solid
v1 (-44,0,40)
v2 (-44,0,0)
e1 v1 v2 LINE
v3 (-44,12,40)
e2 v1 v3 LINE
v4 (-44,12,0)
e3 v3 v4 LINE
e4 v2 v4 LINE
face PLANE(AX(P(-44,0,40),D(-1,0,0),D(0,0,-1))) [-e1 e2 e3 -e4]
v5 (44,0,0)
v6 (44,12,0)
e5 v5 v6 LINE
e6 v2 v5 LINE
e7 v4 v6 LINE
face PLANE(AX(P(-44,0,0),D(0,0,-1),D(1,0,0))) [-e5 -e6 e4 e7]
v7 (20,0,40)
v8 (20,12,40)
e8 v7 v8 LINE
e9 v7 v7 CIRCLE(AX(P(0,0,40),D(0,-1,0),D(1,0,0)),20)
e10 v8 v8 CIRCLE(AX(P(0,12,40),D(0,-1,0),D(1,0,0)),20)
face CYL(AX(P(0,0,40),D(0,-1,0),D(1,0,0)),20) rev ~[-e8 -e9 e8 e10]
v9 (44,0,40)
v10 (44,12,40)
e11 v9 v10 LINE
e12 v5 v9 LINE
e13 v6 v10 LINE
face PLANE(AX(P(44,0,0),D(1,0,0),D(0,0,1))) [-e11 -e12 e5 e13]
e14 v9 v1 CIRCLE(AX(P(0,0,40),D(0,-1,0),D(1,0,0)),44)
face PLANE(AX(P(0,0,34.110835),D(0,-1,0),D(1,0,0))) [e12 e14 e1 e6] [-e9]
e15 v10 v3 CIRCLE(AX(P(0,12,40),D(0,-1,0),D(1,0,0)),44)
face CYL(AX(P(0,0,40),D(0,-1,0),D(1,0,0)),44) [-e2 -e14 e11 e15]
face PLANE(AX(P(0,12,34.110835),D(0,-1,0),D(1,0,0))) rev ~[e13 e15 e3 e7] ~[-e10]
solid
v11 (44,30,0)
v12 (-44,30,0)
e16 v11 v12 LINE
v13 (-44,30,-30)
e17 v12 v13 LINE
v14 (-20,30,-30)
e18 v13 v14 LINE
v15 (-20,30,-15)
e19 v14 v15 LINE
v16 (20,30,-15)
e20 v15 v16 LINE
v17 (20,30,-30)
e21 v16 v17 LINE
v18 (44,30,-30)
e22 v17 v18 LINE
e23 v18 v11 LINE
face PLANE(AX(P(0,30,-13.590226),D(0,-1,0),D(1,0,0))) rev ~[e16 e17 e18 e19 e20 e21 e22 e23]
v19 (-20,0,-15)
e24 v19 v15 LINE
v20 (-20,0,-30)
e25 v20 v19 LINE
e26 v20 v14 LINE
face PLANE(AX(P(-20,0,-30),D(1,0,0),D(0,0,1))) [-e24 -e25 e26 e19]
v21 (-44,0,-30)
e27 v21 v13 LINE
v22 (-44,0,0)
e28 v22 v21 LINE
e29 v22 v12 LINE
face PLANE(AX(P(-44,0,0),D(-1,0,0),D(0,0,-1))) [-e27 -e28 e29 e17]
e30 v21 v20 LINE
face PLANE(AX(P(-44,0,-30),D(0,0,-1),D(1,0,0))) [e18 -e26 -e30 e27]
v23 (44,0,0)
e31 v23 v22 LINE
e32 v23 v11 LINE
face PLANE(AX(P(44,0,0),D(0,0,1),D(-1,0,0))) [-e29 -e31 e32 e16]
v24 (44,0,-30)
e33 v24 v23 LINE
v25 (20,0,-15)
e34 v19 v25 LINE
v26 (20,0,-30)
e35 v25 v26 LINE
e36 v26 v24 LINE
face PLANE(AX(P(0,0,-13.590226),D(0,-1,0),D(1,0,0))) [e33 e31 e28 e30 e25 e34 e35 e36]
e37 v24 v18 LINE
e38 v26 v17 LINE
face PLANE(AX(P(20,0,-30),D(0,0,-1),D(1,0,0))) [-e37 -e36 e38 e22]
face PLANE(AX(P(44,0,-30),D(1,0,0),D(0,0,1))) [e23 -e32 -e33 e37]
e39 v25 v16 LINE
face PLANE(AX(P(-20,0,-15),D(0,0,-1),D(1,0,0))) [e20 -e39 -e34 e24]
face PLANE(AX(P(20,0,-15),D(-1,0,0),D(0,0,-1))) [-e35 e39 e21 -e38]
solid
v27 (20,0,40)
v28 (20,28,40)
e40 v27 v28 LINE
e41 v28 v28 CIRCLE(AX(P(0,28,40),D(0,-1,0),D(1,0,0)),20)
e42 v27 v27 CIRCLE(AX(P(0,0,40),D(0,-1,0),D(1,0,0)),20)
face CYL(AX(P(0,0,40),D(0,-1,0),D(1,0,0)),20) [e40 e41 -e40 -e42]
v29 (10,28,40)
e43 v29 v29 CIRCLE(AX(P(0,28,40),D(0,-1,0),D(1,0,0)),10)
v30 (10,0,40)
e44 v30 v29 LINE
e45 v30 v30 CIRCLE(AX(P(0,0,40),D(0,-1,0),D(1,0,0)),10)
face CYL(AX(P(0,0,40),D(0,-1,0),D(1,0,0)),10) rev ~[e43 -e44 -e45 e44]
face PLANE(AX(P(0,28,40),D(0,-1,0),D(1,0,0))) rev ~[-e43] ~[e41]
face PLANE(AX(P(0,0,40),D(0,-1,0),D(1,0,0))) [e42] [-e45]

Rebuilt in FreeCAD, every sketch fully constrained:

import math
import FreeCAD as App
import Part
import Sketcher
from FreeCAD import Vector
Q = App.Units.Quantity


def add_polygon(sketch, points):
    """Adds a closed chain of lines whose ends are joined by coincident constraints."""
    first, n = sketch.GeometryCount, len(points)
    for a, b in zip(points, points[1:] + points[:1]):
        sketch.addGeometry(Part.LineSegment(App.Vector(*a, 0), App.Vector(*b, 0)), False)
    for i in range(n):
        sketch.addConstraint(Sketcher.Constraint("Coincident", first + i, 2, first + (i + 1) % n, 1))

doc = App.newDocument("Part")
params = doc.addObject("Spreadsheet::Sheet", "Params")
for row, (alias, value) in enumerate([
    ("sketch1_width", "24 mm"),
    ("sketch1_width2", "40 mm"),
    ("sketch1_height", "30 mm"),
    ("sketch1_height2", "15 mm"),
    ("pad1_length", "30 mm"),
    ("sketch2_diameter", "40 mm"),
    ("sketch2_radius", "44 mm"),
    ("sketch2_height", "40 mm"),
    ("pad2_length", "12 mm"),
    ("sketch3_diameter", "40 mm"),
    ("sketch3_diameter2", "20 mm"),
    ("pad3_length", "28 mm"),
], start=1):
    params.set(f"A{row}", alias)
    params.set(f"B{row}", "=" + value)
    params.setAlias(f"B{row}", alias)

body = doc.addObject("PartDesign::Body", "Body")

# Sketch on XZ plane
sketch1 = body.newObject("Sketcher::SketchObject", "Sketch")
sketch1.AttachmentSupport = (doc.getObject("XZ_Plane"), [""])
sketch1.MapMode = "FlatFace"
add_polygon(sketch1, [(-44, 0), (-44, -30), (-20, -30), (-20, -15), (20, -15), (20, -30), (44, -30), (44, 0)])  # lines 0-7
sketch1.addConstraint([
    Sketcher.Constraint("Vertical", 0),
    Sketcher.Constraint("Horizontal", 1),
    Sketcher.Constraint("Vertical", 2),
    Sketcher.Constraint("Horizontal", 3),
    Sketcher.Constraint("Vertical", 4),
    Sketcher.Constraint("Horizontal", 5),
    Sketcher.Constraint("Vertical", 6),
    Sketcher.Constraint("Horizontal", 7),
    Sketcher.Constraint("Symmetric", 6, 2, 7, 2, -1, 1),
    Sketcher.Constraint("Symmetric", 1, 2, 4, 2, -2),
    Sketcher.Constraint("DistanceX", 1, 1, 1, 2, Q("24 mm")),
    Sketcher.Constraint("DistanceX", 3, 1, 3, 2, Q("40 mm")),
    Sketcher.Constraint("DistanceY", 0, 2, 0, 1, Q("30 mm")),
    Sketcher.Constraint("DistanceY", 2, 1, 2, 2, Q("15 mm")),
])
sketch1.setExpression("Constraints[18]", "Params.sketch1_width")
sketch1.setExpression("Constraints[19]", "Params.sketch1_width2")
sketch1.setExpression("Constraints[20]", "Params.sketch1_height")
sketch1.setExpression("Constraints[21]", "Params.sketch1_height2")
pad1 = body.newObject("PartDesign::Pad", "Pad")
pad1.Profile = sketch1
pad1.setExpression("Length", "Params.pad1_length")
pad1.Reversed = True
body2 = doc.addObject("PartDesign::Body", "Body001")

# Sketch on XZ plane
sketch2 = body2.newObject("Sketcher::SketchObject", "Sketch001")
sketch2.AttachmentSupport = (doc.getObject("XZ_Plane001"), [""])
sketch2.MapMode = "FlatFace"
sketch2.addGeometry([
    Part.LineSegment(Vector(-44, 40, 0), Vector(-44, 0, 0)),  # 0
    Part.LineSegment(Vector(-44, 0, 0), Vector(44, 0, 0)),  # 1
    Part.LineSegment(Vector(44, 0, 0), Vector(44, 40, 0)),  # 2
    Part.ArcOfCircle(Part.Circle(Vector(0, 40, 0), Vector(0, 0, 1), 44), math.radians(0), math.radians(180)),  # 3
    Part.Circle(Vector(0, 40, 0), Vector(0, 0, 1), 20),  # 4
], False)
sketch2.addConstraint([
    Sketcher.Constraint("Coincident", 0, 2, 1, 1),
    Sketcher.Constraint("Coincident", 1, 2, 2, 1),
    Sketcher.Constraint("Tangent", 2, 2, 3, 1),
    Sketcher.Constraint("Tangent", 3, 2, 0, 1),
    Sketcher.Constraint("Vertical", 0),
    Sketcher.Constraint("Horizontal", 1),
    Sketcher.Constraint("Vertical", 2),
    Sketcher.Constraint("Coincident", 4, 3, 3, 3),
    Sketcher.Constraint("Symmetric", 0, 2, 1, 2, -1, 1),
    Sketcher.Constraint("Diameter", 4, Q("40 mm")),
    Sketcher.Constraint("Radius", 3, Q("44 mm")),
    Sketcher.Constraint("DistanceY", 0, 2, 0, 1, Q("40 mm")),
])
sketch2.setExpression("Constraints[9]", "Params.sketch2_diameter")
sketch2.setExpression("Constraints[10]", "Params.sketch2_radius")
sketch2.setExpression("Constraints[11]", "Params.sketch2_height")
pad2 = body2.newObject("PartDesign::Pad", "Pad001")
pad2.Profile = sketch2
pad2.setExpression("Length", "Params.pad2_length")
pad2.Reversed = True
body3 = doc.addObject("PartDesign::Body", "Body002")

# Sketch on XZ plane
sketch3 = body3.newObject("Sketcher::SketchObject", "Sketch002")
sketch3.AttachmentSupport = (doc.getObject("XZ_Plane002"), [""])
sketch3.MapMode = "FlatFace"
sketch3.addGeometry([
    Part.Circle(Vector(0, 40, 0), Vector(0, 0, 1), 20),
    Part.Circle(Vector(0, 40, 0), Vector(0, 0, 1), 10),
], False)
sketch3.addConstraint([
    Sketcher.Constraint("Coincident", 1, 3, 0, 3),
    Sketcher.Constraint("PointOnObject", 0, 3, -2),
    Sketcher.Constraint("Diameter", 0, Q("40 mm")),
    Sketcher.Constraint("Diameter", 1, Q("20 mm")),
    Sketcher.Constraint("DistanceY", -1, 1, 0, 3, Q("40 mm")),
])
sketch3.setExpression("Constraints[2]", "Params.sketch3_diameter")
sketch3.setExpression("Constraints[3]", "Params.sketch3_diameter2")
pad3 = body3.newObject("PartDesign::Pad", "Pad002")
pad3.Profile = sketch3
pad3.setExpression("Length", "Params.pad3_length")
pad3.Reversed = True

doc.recompute()
